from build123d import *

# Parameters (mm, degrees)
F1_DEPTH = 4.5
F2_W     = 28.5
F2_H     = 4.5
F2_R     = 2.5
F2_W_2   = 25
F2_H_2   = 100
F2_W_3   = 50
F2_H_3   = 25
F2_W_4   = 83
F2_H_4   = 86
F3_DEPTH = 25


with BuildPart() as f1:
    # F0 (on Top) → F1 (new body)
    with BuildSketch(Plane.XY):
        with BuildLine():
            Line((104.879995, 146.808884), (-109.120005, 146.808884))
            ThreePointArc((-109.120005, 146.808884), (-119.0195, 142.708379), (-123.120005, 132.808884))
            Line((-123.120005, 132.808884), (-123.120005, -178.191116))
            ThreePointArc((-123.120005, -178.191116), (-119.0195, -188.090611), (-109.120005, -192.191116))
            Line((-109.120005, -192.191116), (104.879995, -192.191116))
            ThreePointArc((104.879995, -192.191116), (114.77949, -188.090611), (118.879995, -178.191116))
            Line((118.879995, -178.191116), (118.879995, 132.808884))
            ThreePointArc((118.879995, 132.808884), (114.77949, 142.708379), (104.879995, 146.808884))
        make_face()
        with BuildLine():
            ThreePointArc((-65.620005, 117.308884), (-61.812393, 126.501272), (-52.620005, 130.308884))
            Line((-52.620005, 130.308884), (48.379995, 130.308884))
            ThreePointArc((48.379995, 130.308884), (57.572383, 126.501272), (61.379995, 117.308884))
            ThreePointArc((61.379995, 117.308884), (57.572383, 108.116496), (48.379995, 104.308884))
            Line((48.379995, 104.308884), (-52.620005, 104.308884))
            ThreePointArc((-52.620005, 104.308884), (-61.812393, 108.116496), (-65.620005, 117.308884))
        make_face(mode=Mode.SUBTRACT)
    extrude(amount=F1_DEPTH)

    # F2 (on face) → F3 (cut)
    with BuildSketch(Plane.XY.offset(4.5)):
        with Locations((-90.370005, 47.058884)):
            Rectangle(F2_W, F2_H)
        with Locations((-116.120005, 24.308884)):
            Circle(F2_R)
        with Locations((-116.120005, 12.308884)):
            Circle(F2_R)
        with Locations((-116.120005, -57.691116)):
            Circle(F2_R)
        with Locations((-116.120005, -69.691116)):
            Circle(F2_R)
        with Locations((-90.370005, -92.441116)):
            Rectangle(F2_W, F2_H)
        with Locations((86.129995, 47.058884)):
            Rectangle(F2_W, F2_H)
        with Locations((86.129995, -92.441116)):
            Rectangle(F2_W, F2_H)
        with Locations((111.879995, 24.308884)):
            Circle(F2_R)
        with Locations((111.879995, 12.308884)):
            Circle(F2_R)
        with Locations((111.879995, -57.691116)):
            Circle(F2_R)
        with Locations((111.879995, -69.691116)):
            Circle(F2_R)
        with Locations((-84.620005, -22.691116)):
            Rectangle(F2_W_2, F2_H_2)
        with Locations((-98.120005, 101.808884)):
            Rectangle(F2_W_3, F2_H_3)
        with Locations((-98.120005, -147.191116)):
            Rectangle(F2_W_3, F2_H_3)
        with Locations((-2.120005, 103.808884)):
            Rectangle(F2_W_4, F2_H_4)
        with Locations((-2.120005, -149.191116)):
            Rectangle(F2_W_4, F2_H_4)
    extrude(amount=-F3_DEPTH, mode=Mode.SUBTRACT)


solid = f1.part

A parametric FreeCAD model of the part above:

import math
import FreeCAD as App
import Part
import Sketcher
from FreeCAD import Vector


def add_polygon(sketch, points):
    """Adds a closed chain of lines whose ends are joined by coincident constraints."""
    first, n = sketch.GeometryCount, len(points)
    for a, b in zip(points, points[1:] + points[:1]):
        sketch.addGeometry(Part.LineSegment(App.Vector(*a, 0), App.Vector(*b, 0)), False)
    for i in range(n):
        sketch.addConstraint(Sketcher.Constraint("Coincident", first + i, 2, first + (i + 1) % n, 1))

doc = App.newDocument("Part")
params = doc.addObject("Spreadsheet::Sheet", "Params")
for row, (alias, value) in enumerate([
    ("sketch1_radius", "14 mm"),
    ("sketch1_radius2", "13.000001 mm"),
    ("sketch1_width", "214 mm"),
    ("sketch1_width2", "101 mm"),
    ("sketch1_height", "311 mm"),
    ("pad1_length", "4.5 mm"),
    ("sketch2_diameter", "5 mm"),
    ("sketch2_width", "25 mm"),
    ("sketch2_width2", "50 mm"),
    ("sketch2_width3", "83 mm"),
    ("sketch2_height", "100 mm"),
    ("pocket1_length", "25 mm"),
], start=1):
    params.set(f"A{row}", alias)
    params.set(f"B{row}", "=" + value)
    params.setAlias(f"B{row}", alias)

body = doc.addObject("PartDesign::Body", "Body")

# Sketch on XY plane
sketch1 = body.newObject("Sketcher::SketchObject", "Sketch")
sketch1.AttachmentSupport = (doc.getObject("XY_Plane"), [""])
sketch1.MapMode = "FlatFace"
sketch1.addGeometry(Part.LineSegment(Vector(104.879995, 146.808884, 0), Vector(-109.120005, 146.808884, 0)), False)
sketch1.addGeometry(Part.ArcOfCircle(Part.Circle(Vector(-109.120005, 132.808884, 0), Vector(0, 0, 1), 14), math.radians(89.999999), math.radians(180.000001)), False)
sketch1.addGeometry(Part.LineSegment(Vector(-123.120005, 132.808884, 0), Vector(-123.120005, -178.191116, 0)), False)
sketch1.addGeometry(Part.ArcOfCircle(Part.Circle(Vector(-109.120005, -178.191116, 0), Vector(0, 0, 1), 14), math.radians(179.999999), math.radians(270.000001)), False)
sketch1.addGeometry(Part.LineSegment(Vector(-109.120005, -192.191116, 0), Vector(104.879995, -192.191116, 0)), False)
sketch1.addGeometry(Part.ArcOfCircle(Part.Circle(Vector(104.879995, -178.191116, 0), Vector(0, 0, 1), 14), math.radians(-90.000001), math.radians(0.000001)), False)
sketch1.addGeometry(Part.LineSegment(Vector(118.879995, -178.191116, 0), Vector(118.879995, 132.808884, 0)), False)
sketch1.addGeometry(Part.ArcOfCircle(Part.Circle(Vector(104.879995, 132.808884, 0), Vector(0, 0, 1), 14), math.radians(-0.000001), math.radians(90.000001)), False)
sketch1.addGeometry(Part.ArcOfCircle(Part.Circle(Vector(-52.620004, 117.308885, 0), Vector(0, 0, 1), 13.000001), math.radians(-179.999998), math.radians(-90.000002)), False)
sketch1.addGeometry(Part.ArcOfCircle(Part.Circle(Vector(-52.620004, 117.308883, 0), Vector(0, 0, 1), 13.000001), math.radians(90.000002), math.radians(179.999998)), False)
sketch1.addGeometry(Part.LineSegment(Vector(-52.620005, 130.308884, 0), Vector(48.379995, 130.308884, 0)), False)
sketch1.addGeometry(Part.ArcOfCircle(Part.Circle(Vector(48.379994, 117.308883, 0), Vector(0, 0, 1), 13.000001), math.radians(0.000002), math.radians(89.999998)), False)
sketch1.addGeometry(Part.ArcOfCircle(Part.Circle(Vector(48.379994, 117.308885, 0), Vector(0, 0, 1), 13.000001), math.radians(-89.999998), math.radians(-0.000002)), False)
sketch1.addGeometry(Part.LineSegment(Vector(48.379995, 104.308884, 0), Vector(-52.620005, 104.308884, 0)), False)
sketch1.addConstraint(Sketcher.Constraint("Tangent", 0, 2, 1, 1))
sketch1.addConstraint(Sketcher.Constraint("Tangent", 1, 2, 2, 1))
sketch1.addConstraint(Sketcher.Constraint("Tangent", 2, 2, 3, 1))
sketch1.addConstraint(Sketcher.Constraint("Tangent", 3, 2, 4, 1))
sketch1.addConstraint(Sketcher.Constraint("Tangent", 4, 2, 5, 1))
sketch1.addConstraint(Sketcher.Constraint("Tangent", 5, 2, 6, 1))
sketch1.addConstraint(Sketcher.Constraint("Tangent", 6, 2, 7, 1))
sketch1.addConstraint(Sketcher.Constraint("Tangent", 7, 2, 0, 1))
sketch1.addConstraint(Sketcher.Constraint("Tangent", 8, 1, 9, 2))
sketch1.addConstraint(Sketcher.Constraint("Tangent", 9, 1, 10, 1))
sketch1.addConstraint(Sketcher.Constraint("Tangent", 10, 2, 11, 2))
sketch1.addConstraint(Sketcher.Constraint("Tangent", 11, 1, 12, 2))
sketch1.addConstraint(Sketcher.Constraint("Tangent", 12, 1, 13, 1))
sketch1.addConstraint(Sketcher.Constraint("Tangent", 13, 2, 8, 2))
sketch1.addConstraint(Sketcher.Constraint("Horizontal", 0))
sketch1.addConstraint(Sketcher.Constraint("Vertical", 2))
sketch1.addConstraint(Sketcher.Constraint("Horizontal", 4))
sketch1.addConstraint(Sketcher.Constraint("Vertical", 6))
sketch1.addConstraint(Sketcher.Constraint("Horizontal", 10))
sketch1.addConstraint(Sketcher.Constraint("Horizontal", 13))
sketch1.addConstraint(Sketcher.Constraint("Equal", 1, 3))
sketch1.addConstraint(Sketcher.Constraint("Equal", 3, 5))
sketch1.addConstraint(Sketcher.Constraint("Equal", 5, 7))
sketch1.addConstraint(Sketcher.Constraint("Equal", 8, 9))
sketch1.addConstraint(Sketcher.Constraint("Equal", 9, 11))
sketch1.addConstraint(Sketcher.Constraint("Horizontal", 12, 3, 8, 1))
sketch1.addConstraint(Sketcher.Constraint("Horizontal", 8, 1, 11, 1))
sketch1.addConstraint(Sketcher.Constraint("Radius", 1, 14.0))
sketch1.addConstraint(Sketcher.Constraint("Radius", 8, 13.000001))
sketch1.addConstraint(Sketcher.Constraint("DistanceX", 0, 2, 0, 1, 214.0))
sketch1.addConstraint(Sketcher.Constraint("DistanceX", 10, 1, 10, 2, 101.0))
sketch1.addConstraint(Sketcher.Constraint("DistanceY", 2, 2, 2, 1, 311.0))
sketch1.addConstraint(Sketcher.Constraint("DistanceX", 1, 3, 8, 3, 56.500001))
sketch1.addConstraint(Sketcher.Constraint("DistanceY", 8, 3, 1, 3, 15.5))
sketch1.addConstraint(Sketcher.Constraint("DistanceX", 1, 3, -1, 1, 109.120005))
sketch1.addConstraint(Sketcher.Constraint("DistanceY", -1, 1, 1, 3, 132.808884))
sketch1.setExpression("Constraints[27]", "Params.sketch1_radius")
sketch1.setExpression("Constraints[28]", "Params.sketch1_radius2")
sketch1.setExpression("Constraints[29]", "Params.sketch1_width")
sketch1.setExpression("Constraints[30]", "Params.sketch1_width2")
sketch1.setExpression("Constraints[31]", "Params.sketch1_height")
pad1 = body.newObject("PartDesign::Pad", "Pad")
pad1.Profile = sketch1
pad1.setExpression("Length", "Params.pad1_length")

# Sketch on XY plane
sketch2 = body.newObject("Sketcher::SketchObject", "Sketch001")
sketch2.AttachmentSupport = (doc.getObject("XY_Plane"), [""])
sketch2.MapMode = "FlatFace"
sketch2.AttachmentOffset = App.Placement(Vector(0, 0, 4.5), App.Rotation())
add_polygon(sketch2, [(-104.620005, 49.308884), (-104.620005, 44.808884), (-76.120005, 44.808884), (-76.120005, 49.308884)])  # lines 0-3
sketch2.addGeometry(Part.Circle(Vector(-116.120005, 24.308884, 0), Vector(0, 0, 1), 2.5), False)  # 4
sketch2.addGeometry(Part.Circle(Vector(-116.120005, 12.308884, 0), Vector(0, 0, 1), 2.5), False)  # 5
sketch2.addGeometry(Part.Circle(Vector(-116.120005, -57.691116, 0), Vector(0, 0, 1), 2.5), False)  # 6
sketch2.addGeometry(Part.Circle(Vector(-116.120005, -69.691116, 0), Vector(0, 0, 1), 2.5), False)  # 7
add_polygon(sketch2, [(-104.620005, -90.191116), (-104.620005, -94.691116), (-76.120005, -94.691116), (-76.120005, -90.191116)])  # lines 8-11
add_polygon(sketch2, [(71.879995, 49.308884), (71.879995, 44.808884), (100.379995, 44.808884), (100.379995, 49.308884)])  # lines 12-15
add_polygon(sketch2, [(71.879995, -90.191116), (71.879995, -94.691116), (100.379995, -94.691116), (100.379995, -90.191116)])  # lines 16-19
sketch2.addGeometry(Part.Circle(Vector(111.879995, 24.308884, 0), Vector(0, 0, 1), 2.5), False)  # 20
sketch2.addGeometry(Part.Circle(Vector(111.879995, 12.308884, 0), Vector(0, 0, 1), 2.5), False)  # 21
sketch2.addGeometry(Part.Circle(Vector(111.879995, -57.691116, 0), Vector(0, 0, 1), 2.5), False)  # 22
sketch2.addGeometry(Part.Circle(Vector(111.879995, -69.691116, 0), Vector(0, 0, 1), 2.5), False)  # 23
add_polygon(sketch2, [(-97.120005, 27.308884), (-97.120005, -72.691116), (-72.120005, -72.691116), (-72.120005, 27.308884)])  # lines 24-27
add_polygon(sketch2, [(-123.120005, 114.308884), (-123.120005, 89.308884), (-73.120005, 89.308884), (-73.120005, 114.308884)])  # lines 28-31
add_polygon(sketch2, [(-123.120005, -134.691116), (-123.120005, -159.691116), (-73.120005, -159.691116), (-73.120005, -134.691116)])  # lines 32-35
add_polygon(sketch2, [(-43.620005, 146.808884), (-43.620005, 60.808884), (39.379995, 60.808884), (39.379995, 146.808884)])  # lines 36-39
add_polygon(sketch2, [(-43.620005, -106.191116), (-43.620005, -192.191116), (39.379995, -192.191116), (39.379995, -106.191116)])  # lines 40-43
sketch2.addConstraint(Sketcher.Constraint("Vertical", 0))
sketch2.addConstraint(Sketcher.Constraint("Horizontal", 1))
sketch2.addConstraint(Sketcher.Constraint("Vertical", 2))
sketch2.addConstraint(Sketcher.Constraint("Horizontal", 3))
sketch2.addConstraint(Sketcher.Constraint("Vertical", 8))
sketch2.addConstraint(Sketcher.Constraint("Horizontal", 9))
sketch2.addConstraint(Sketcher.Constraint("Vertical", 10))
sketch2.addConstraint(Sketcher.Constraint("Horizontal", 11))
sketch2.addConstraint(Sketcher.Constraint("Vertical", 12))
sketch2.addConstraint(Sketcher.Constraint("Horizontal", 13))
sketch2.addConstraint(Sketcher.Constraint("Vertical", 14))
sketch2.addConstraint(Sketcher.Constraint("Horizontal", 15))
sketch2.addConstraint(Sketcher.Constraint("Vertical", 16))
sketch2.addConstraint(Sketcher.Constraint("Horizontal", 17))
sketch2.addConstraint(Sketcher.Constraint("Vertical", 18))
sketch2.addConstraint(Sketcher.Constraint("Horizontal", 19))
sketch2.addConstraint(Sketcher.Constraint("Vertical", 24))
sketch2.addConstraint(Sketcher.Constraint("Horizontal", 25))
sketch2.addConstraint(Sketcher.Constraint("Vertical", 26))
sketch2.addConstraint(Sketcher.Constraint("Horizontal", 27))
sketch2.addConstraint(Sketcher.Constraint("Vertical", 28))
sketch2.addConstraint(Sketcher.Constraint("Horizontal", 29))
sketch2.addConstraint(Sketcher.Constraint("Vertical", 30))
sketch2.addConstraint(Sketcher.Constraint("Horizontal", 31))
sketch2.addConstraint(Sketcher.Constraint("Vertical", 32))
sketch2.addConstraint(Sketcher.Constraint("Horizontal", 33))
sketch2.addConstraint(Sketcher.Constraint("Vertical", 34))
sketch2.addConstraint(Sketcher.Constraint("Horizontal", 35))
sketch2.addConstraint(Sketcher.Constraint("Vertical", 36))
sketch2.addConstraint(Sketcher.Constraint("Horizontal", 37))
sketch2.addConstraint(Sketcher.Constraint("Vertical", 38))
sketch2.addConstraint(Sketcher.Constraint("Horizontal", 39))
sketch2.addConstraint(Sketcher.Constraint("Vertical", 40))
sketch2.addConstraint(Sketcher.Constraint("Horizontal", 41))
sketch2.addConstraint(Sketcher.Constraint("Vertical", 42))
sketch2.addConstraint(Sketcher.Constraint("Horizontal", 43))
sketch2.addConstraint(Sketcher.Constraint("Equal", 4, 5))
sketch2.addConstraint(Sketcher.Constraint("Equal", 5, 6))
sketch2.addConstraint(Sketcher.Constraint("Equal", 6, 7))
sketch2.addConstraint(Sketcher.Constraint("Equal", 7, 20))
sketch2.addConstraint(Sketcher.Constraint("Equal", 20, 21))
sketch2.addConstraint(Sketcher.Constraint("Equal", 21, 22))
sketch2.addConstraint(Sketcher.Constraint("Equal", 22, 23))
sketch2.addConstraint(Sketcher.Constraint("Horizontal", 4, 3, 20, 3))
sketch2.addConstraint(Sketcher.Constraint("Horizontal", 5, 3, 21, 3))
sketch2.addConstraint(Sketcher.Constraint("Horizontal", 6, 3, 22, 3))
sketch2.addConstraint(Sketcher.Constraint("Horizontal", 7, 3, 23, 3))
sketch2.addConstraint(Sketcher.Constraint("Horizontal", 1, 2, 12, 2))
sketch2.addConstraint(Sketcher.Constraint("Horizontal", 3, 2, 14, 2))
sketch2.addConstraint(Sketcher.Constraint("Horizontal", 9, 2, 16, 2))
sketch2.addConstraint(Sketcher.Constraint("Horizontal", 11, 2, 18, 2))
sketch2.addConstraint(Sketcher.Constraint("Vertical", 4, 3, 5, 3))
sketch2.addConstraint(Sketcher.Constraint("Vertical", 5, 3, 6, 3))
sketch2.addConstraint(Sketcher.Constraint("Vertical", 6, 3, 7, 3))
sketch2.addConstraint(Sketcher.Constraint("Vertical", 20, 3, 21, 3))
sketch2.addConstraint(Sketcher.Constraint("Vertical", 21, 3, 22, 3))
sketch2.addConstraint(Sketcher.Constraint("Vertical", 22, 3, 23, 3))
sketch2.addConstraint(Sketcher.Constraint("Vertical", 3, 2, 8, 2))
sketch2.addConstraint(Sketcher.Constraint("Vertical", 2, 2, 9, 2))
sketch2.addConstraint(Sketcher.Constraint("Vertical", 15, 2, 16, 2))
sketch2.addConstraint(Sketcher.Constraint("Vertical", 14, 2, 17, 2))
sketch2.addConstraint(Sketcher.Constraint("Vertical", 31, 2, 32, 2))
sketch2.addConstraint(Sketcher.Constraint("Vertical", 30, 2, 33, 2))
sketch2.addConstraint(Sketcher.Constraint("Vertical", 39, 2, 40, 2))
sketch2.addConstraint(Sketcher.Constraint("Vertical", 38, 2, 41, 2))
sketch2.addConstraint(Sketcher.Constraint("Equal", 11, 13))
sketch2.addConstraint(Sketcher.Constraint("Equal", 2, 8))
sketch2.addConstraint(Sketcher.Constraint("Equal", 27, 28))
sketch2.addConstraint(Sketcher.Constraint("Equal", 30, 32))
sketch2.addConstraint(Sketcher.Constraint("Equal", 38, 40))
sketch2.addConstraint(Sketcher.Constraint("Diameter", 4, 5.0))
sketch2.addConstraint(Sketcher.Constraint("DistanceX", 25, 1, 25, 2, 25.0))
sketch2.addConstraint(Sketcher.Constraint("DistanceX", 29, 1, 29, 2, 50.0))
sketch2.addConstraint(Sketcher.Constraint("DistanceX", 37, 1, 37, 2, 83.0))
sketch2.addConstraint(Sketcher.Constraint("DistanceY", 24, 2, 24, 1, 100.0))
sketch2.addConstraint(Sketcher.Constraint("DistanceY", 36, 2, 36, 1, 86.0))
sketch2.addConstraint(Sketcher.Constraint("DistanceX", 1, 1, 1, 2, 28.5))
sketch2.addConstraint(Sketcher.Constraint("DistanceY", 0, 2, 0, 1, 4.5))
sketch2.addConstraint(Sketcher.Constraint("DistanceY", 5, 3, 4, 3, 12.0))
sketch2.addConstraint(Sketcher.Constraint("DistanceY", 6, 3, 5, 3, 70.0))
sketch2.addConstraint(Sketcher.Constraint("DistanceY", 7, 3, 6, 3, 12.0))
sketch2.addConstraint(Sketcher.Constraint("DistanceX", 4, 3, 20, 3, 228.0))
sketch2.addConstraint(Sketcher.Constraint("DistanceX", 4, 3, 1, 2, 40.0))
sketch2.addConstraint(Sketcher.Constraint("DistanceY", 4, 3, 2, 2, 25.0))
sketch2.addConstraint(Sketcher.Constraint("DistanceY", 8, 2, 7, 3, 25.0))
sketch2.addConstraint(Sketcher.Constraint("DistanceX", 12, 2, 20, 3, 40.0))
sketch2.addConstraint(Sketcher.Constraint("DistanceX", 7, 3, 24, 2, 19.0))
sketch2.addConstraint(Sketcher.Constraint("DistanceY", 24, 2, 7, 3, 3.0))
sketch2.addConstraint(Sketcher.Constraint("DistanceY", 3, 2, 28, 2, 40.0))
sketch2.addConstraint(Sketcher.Constraint("DistanceX", 28, 2, 2, 2, 47.0))
sketch2.addConstraint(Sketcher.Constraint("DistanceY", 32, 2, 8, 2, 65.0))
sketch2.addConstraint(Sketcher.Constraint("DistanceY", 1, 2, 36, 2, 16.0))
sketch2.addConstraint(Sketcher.Constraint("DistanceX", 37, 2, 14, 2, 61.0))
sketch2.addConstraint(Sketcher.Constraint("DistanceY", 41, 2, 19, 2, 102.0))
sketch2.addConstraint(Sketcher.Constraint("DistanceX", 4, 3, -1, 1, 116.120005))
sketch2.addConstraint(Sketcher.Constraint("DistanceY", -1, 1, 4, 3, 24.308884))
sketch2.setExpression("Constraints[106]", "Params.sketch2_diameter")
sketch2.setExpression("Constraints[107]", "Params.sketch2_width")
sketch2.setExpression("Constraints[108]", "Params.sketch2_width2")
sketch2.setExpression("Constraints[109]", "Params.sketch2_width3")
sketch2.setExpression("Constraints[110]", "Params.sketch2_height")
pocket1 = body.newObject("PartDesign::Pocket", "Pocket")
pocket1.Profile = sketch2
pocket1.setExpression("Length", "Params.pocket1_length")

doc.recompute()
